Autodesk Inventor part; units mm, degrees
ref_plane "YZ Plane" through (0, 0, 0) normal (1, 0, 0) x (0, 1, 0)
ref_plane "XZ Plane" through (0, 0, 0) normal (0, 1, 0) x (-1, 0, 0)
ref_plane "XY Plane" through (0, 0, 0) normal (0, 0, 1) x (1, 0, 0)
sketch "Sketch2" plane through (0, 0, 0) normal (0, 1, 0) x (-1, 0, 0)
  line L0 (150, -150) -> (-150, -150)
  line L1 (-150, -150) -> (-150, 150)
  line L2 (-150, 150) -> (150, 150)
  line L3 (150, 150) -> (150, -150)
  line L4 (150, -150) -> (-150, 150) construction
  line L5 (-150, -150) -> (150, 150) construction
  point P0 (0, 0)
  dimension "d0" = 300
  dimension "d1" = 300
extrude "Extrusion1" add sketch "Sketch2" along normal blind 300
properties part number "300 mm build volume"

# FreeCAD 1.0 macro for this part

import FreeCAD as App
import Part
import Sketcher
from FreeCAD import Vector

doc = App.newDocument("Part")
body = doc.addObject("PartDesign::Body", "Body")

# Sketch on XZ plane
sketch1 = body.newObject("Sketcher::SketchObject", "Sketch")
sketch1.AttachmentSupport = (doc.getObject("XZ_Plane"), [""])
sketch1.MapMode = "FlatFace"
sketch1.addGeometry([
    Part.LineSegment(Vector(150, -150, 0), Vector(-150, -150, 0)),
    Part.LineSegment(Vector(-150, -150, 0), Vector(-150, 150, 0)),
    Part.LineSegment(Vector(-150, 150, 0), Vector(150, 150, 0)),
    Part.LineSegment(Vector(150, 150, 0), Vector(150, -150, 0)),
], False)
sketch1.addConstraint([
    Sketcher.Constraint("Coincident", 0, 2, 1, 1),
    Sketcher.Constraint("Coincident", 1, 2, 2, 1),
    Sketcher.Constraint("Coincident", 2, 2, 3, 1),
    Sketcher.Constraint("Coincident", 3, 2, 0, 1),
    Sketcher.Constraint("Horizontal", 0),
    Sketcher.Constraint("Vertical", 1),
    Sketcher.Constraint("Horizontal", 2),
    Sketcher.Constraint("Vertical", 3),
    Sketcher.Constraint("Symmetric", 0, 2, 2, 2, -1, 1),
    Sketcher.Constraint("Equal", 2, 1),
    Sketcher.Constraint("DistanceX", 0, 2, 0, 1, 300.0),
])
pad1 = body.newObject("PartDesign::Pad", "Pad")
pad1.Profile = sketch1
pad1.Length = 300
pad1.Reversed = True

doc.recompute()
